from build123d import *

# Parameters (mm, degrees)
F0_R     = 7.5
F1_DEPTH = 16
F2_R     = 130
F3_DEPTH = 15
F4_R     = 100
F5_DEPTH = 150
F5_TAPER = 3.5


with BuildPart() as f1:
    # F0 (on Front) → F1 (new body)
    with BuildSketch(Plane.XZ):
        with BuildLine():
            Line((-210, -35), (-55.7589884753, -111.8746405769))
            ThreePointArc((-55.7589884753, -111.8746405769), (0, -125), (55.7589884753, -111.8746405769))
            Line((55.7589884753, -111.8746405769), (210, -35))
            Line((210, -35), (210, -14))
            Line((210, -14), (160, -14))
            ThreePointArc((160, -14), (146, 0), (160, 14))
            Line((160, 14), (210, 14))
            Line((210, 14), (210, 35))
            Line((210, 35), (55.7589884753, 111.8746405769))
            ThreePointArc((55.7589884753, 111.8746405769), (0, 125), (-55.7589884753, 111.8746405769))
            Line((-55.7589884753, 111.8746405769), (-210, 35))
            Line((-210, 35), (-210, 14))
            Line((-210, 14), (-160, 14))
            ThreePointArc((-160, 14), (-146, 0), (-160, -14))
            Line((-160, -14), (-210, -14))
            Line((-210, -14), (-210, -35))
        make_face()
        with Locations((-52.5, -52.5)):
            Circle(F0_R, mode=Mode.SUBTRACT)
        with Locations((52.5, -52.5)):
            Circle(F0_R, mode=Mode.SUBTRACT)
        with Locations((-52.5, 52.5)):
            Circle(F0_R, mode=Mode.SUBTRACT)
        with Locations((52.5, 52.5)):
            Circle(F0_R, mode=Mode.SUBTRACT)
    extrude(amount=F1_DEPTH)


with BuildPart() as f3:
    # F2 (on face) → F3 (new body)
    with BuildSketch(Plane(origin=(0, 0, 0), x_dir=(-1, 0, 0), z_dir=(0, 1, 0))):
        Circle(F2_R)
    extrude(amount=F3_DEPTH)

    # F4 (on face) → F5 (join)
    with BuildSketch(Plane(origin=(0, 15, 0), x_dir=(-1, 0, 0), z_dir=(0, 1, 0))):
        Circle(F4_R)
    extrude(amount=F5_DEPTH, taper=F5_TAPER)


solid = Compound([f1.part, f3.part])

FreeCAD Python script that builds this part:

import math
import FreeCAD as App
import Part
import Sketcher

V = App.Vector

doc = App.newDocument("Part")
params = doc.addObject("Spreadsheet::Sheet", "Params")
for row, (alias, value) in enumerate([
    ("sketch1_diameter", "15 mm"),
    ("sketch1_radius", "125 mm"),
    ("sketch1_radius2", "14 mm"),
    ("sketch1_width", "50 mm"),
    ("sketch1_height", "21 mm"),
    ("pad1_length", "16 mm"),
    ("sketch2_diameter", "260 mm"),
    ("pad2_length", "15 mm"),
    ("sketch3_diameter", "200 mm"),
    ("pad3_length", "150 mm"),
    ("pad3_taper", "-3.5 deg"),
], start=1):
    params.set(f"A{row}", alias)
    params.set(f"B{row}", "=" + value)
    params.setAlias(f"B{row}", alias)

body = doc.addObject("PartDesign::Body", "Body")

# Sketch on XZ plane
sketch1 = doc.addObject("Sketcher::SketchObject", "Sketch")
body.addObject(sketch1)
sketch1.AttachmentSupport = (doc.XZ_Plane, [""])
sketch1.MapMode = "FlatFace"
sketch1.addGeometry(Part.LineSegment(V(-210, -35, 0), V(-56, -112, 0)), False)
sketch1.addGeometry(Part.ArcOfCircle(Part.Circle(V(0, 0, 0), V(0, 0, 1), 125), math.radians(-116), math.radians(-64)), False)
sketch1.addGeometry(Part.LineSegment(V(56, -112, 0), V(210, -35, 0)), False)
sketch1.addGeometry(Part.LineSegment(V(210, -35, 0), V(210, -14, 0)), False)
sketch1.addGeometry(Part.LineSegment(V(210, -14, 0), V(160, -14, 0)), False)
sketch1.addGeometry(Part.ArcOfCircle(Part.Circle(V(160, 0, 0), V(0, 0, 1), 14), math.radians(90), math.radians(270)), False)
sketch1.addGeometry(Part.LineSegment(V(160, 14, 0), V(210, 14, 0)), False)
sketch1.addGeometry(Part.LineSegment(V(210, 14, 0), V(210, 35, 0)), False)
sketch1.addGeometry(Part.LineSegment(V(210, 35, 0), V(56, 112, 0)), False)
sketch1.addGeometry(Part.ArcOfCircle(Part.Circle(V(0, 0, 0), V(0, 0, 1), 125), math.radians(64), math.radians(116)), False)
sketch1.addGeometry(Part.LineSegment(V(-56, 112, 0), V(-210, 35, 0)), False)
sketch1.addGeometry(Part.LineSegment(V(-210, 35, 0), V(-210, 14, 0)), False)
sketch1.addGeometry(Part.LineSegment(V(-210, 14, 0), V(-160, 14, 0)), False)
sketch1.addGeometry(Part.ArcOfCircle(Part.Circle(V(-160, 0, 0), V(0, 0, 1), 14), math.radians(-90), math.radians(90)), False)
sketch1.addGeometry(Part.LineSegment(V(-160, -14, 0), V(-210, -14, 0)), False)
sketch1.addGeometry(Part.LineSegment(V(-210, -14, 0), V(-210, -35, 0)), False)
sketch1.addGeometry(Part.Circle(V(-52, -52, 0), V(0, 0, 1), 8), False)
sketch1.addGeometry(Part.Circle(V(52, -52, 0), V(0, 0, 1), 8), False)
sketch1.addGeometry(Part.Circle(V(-52, 52, 0), V(0, 0, 1), 8), False)
sketch1.addGeometry(Part.Circle(V(52, 52, 0), V(0, 0, 1), 8), False)
sketch1.addConstraint(Sketcher.Constraint("Tangent", 0, 2, 1, 1))
sketch1.addConstraint(Sketcher.Constraint("Tangent", 1, 2, 2, 1))
sketch1.addConstraint(Sketcher.Constraint("Coincident", 2, 2, 3, 1))
sketch1.addConstraint(Sketcher.Constraint("Coincident", 3, 2, 4, 1))
sketch1.addConstraint(Sketcher.Constraint("Tangent", 4, 2, 5, 2))
sketch1.addConstraint(Sketcher.Constraint("Tangent", 5, 1, 6, 1))
sketch1.addConstraint(Sketcher.Constraint("Coincident", 6, 2, 7, 1))
sketch1.addConstraint(Sketcher.Constraint("Coincident", 7, 2, 8, 1))
sketch1.addConstraint(Sketcher.Constraint("Tangent", 8, 2, 9, 1))
sketch1.addConstraint(Sketcher.Constraint("Tangent", 9, 2, 10, 1))
sketch1.addConstraint(Sketcher.Constraint("Coincident", 10, 2, 11, 1))
sketch1.addConstraint(Sketcher.Constraint("Coincident", 11, 2, 12, 1))
sketch1.addConstraint(Sketcher.Constraint("Tangent", 12, 2, 13, 2))
sketch1.addConstraint(Sketcher.Constraint("Tangent", 13, 1, 14, 1))
sketch1.addConstraint(Sketcher.Constraint("Coincident", 14, 2, 15, 1))
sketch1.addConstraint(Sketcher.Constraint("Coincident", 15, 2, 0, 1))
sketch1.addConstraint(Sketcher.Constraint("Vertical", 3))
sketch1.addConstraint(Sketcher.Constraint("Horizontal", 4))
sketch1.addConstraint(Sketcher.Constraint("Horizontal", 6))
sketch1.addConstraint(Sketcher.Constraint("Vertical", 7))
sketch1.addConstraint(Sketcher.Constraint("Vertical", 11))
sketch1.addConstraint(Sketcher.Constraint("Horizontal", 12))
sketch1.addConstraint(Sketcher.Constraint("Horizontal", 14))
sketch1.addConstraint(Sketcher.Constraint("Vertical", 15))
sketch1.addConstraint(Sketcher.Constraint("Coincident", 1, 3, -1, 1))
sketch1.addConstraint(Sketcher.Constraint("Coincident", 9, 3, -1, 1))
sketch1.addConstraint(Sketcher.Constraint("Equal", 1, 9))
sketch1.addConstraint(Sketcher.Constraint("Equal", 5, 13))
sketch1.addConstraint(Sketcher.Constraint("Equal", 16, 17))
sketch1.addConstraint(Sketcher.Constraint("Equal", 17, 18))
sketch1.addConstraint(Sketcher.Constraint("Equal", 18, 19))
sketch1.addConstraint(Sketcher.Constraint("Symmetric", 5, 3, 13, 3, -1, 1))
sketch1.addConstraint(Sketcher.Constraint("Symmetric", 17, 3, 18, 3, -1, 1))
sketch1.addConstraint(Sketcher.Constraint("Symmetric", 16, 3, 19, 3, -1, 1))
sketch1.addConstraint(Sketcher.Constraint("Symmetric", 2, 2, 10, 2, -1, 1))
sketch1.addConstraint(Sketcher.Constraint("Symmetric", 7, 2, 15, 2, -1, 1))
sketch1.addConstraint(Sketcher.Constraint("Symmetric", 16, 3, 17, 3, -2))
sketch1.addConstraint(Sketcher.Constraint("Symmetric", 7, 2, 10, 2, -2))
sketch1.addConstraint(Sketcher.Constraint("PointOnObject", 5, 3, -1))
sketch1.addConstraint(Sketcher.Constraint("Diameter", 16, 15.0))
sketch1.addConstraint(Sketcher.Constraint("Radius", 1, 125.0))
sketch1.addConstraint(Sketcher.Constraint("Radius", 5, 14.0))
sketch1.addConstraint(Sketcher.Constraint("DistanceX", 4, 2, 4, 1, 50.0))
sketch1.addConstraint(Sketcher.Constraint("DistanceY", 3, 1, 3, 2, 21.0))
sketch1.addConstraint(Sketcher.Constraint("DistanceX", -1, 1, 5, 3, 160.0))
sketch1.addConstraint(Sketcher.Constraint("DistanceX", 16, 3, 17, 3, 105.0))
sketch1.addConstraint(Sketcher.Constraint("DistanceY", 16, 3, 18, 3, 105.0))
sketch1.setExpression("Constraints[39]", "Params.sketch1_diameter")
sketch1.setExpression("Constraints[40]", "Params.sketch1_radius")
sketch1.setExpression("Constraints[41]", "Params.sketch1_radius2")
sketch1.setExpression("Constraints[42]", "Params.sketch1_width")
sketch1.setExpression("Constraints[43]", "Params.sketch1_height")
pad1 = doc.addObject("PartDesign::Pad", "Pad")
body.addObject(pad1)
pad1.Profile = sketch1
pad1.setExpression("Length", "Params.pad1_length")
body2 = doc.addObject("PartDesign::Body", "Body001")

# Sketch on XZ plane
sketch2 = doc.addObject("Sketcher::SketchObject", "Sketch001")
body2.addObject(sketch2)
sketch2.AttachmentSupport = (doc.getObject("XZ_Plane001"), [""])
sketch2.MapMode = "FlatFace"
sketch2.addGeometry(Part.Circle(V(0, 0, 0), V(0, 0, 1), 130), False)
sketch2.addConstraint(Sketcher.Constraint("Coincident", 0, 3, -1, 1))
sketch2.addConstraint(Sketcher.Constraint("Diameter", 0, 260.0))
sketch2.setExpression("Constraints[1]", "Params.sketch2_diameter")
pad2 = doc.addObject("PartDesign::Pad", "Pad001")
body2.addObject(pad2)
pad2.Profile = sketch2
pad2.setExpression("Length", "Params.pad2_length")
pad2.Reversed = True

# Sketch on XZ plane
sketch3 = doc.addObject("Sketcher::SketchObject", "Sketch002")
body2.addObject(sketch3)
sketch3.AttachmentSupport = (doc.getObject("XZ_Plane001"), [""])
sketch3.MapMode = "FlatFace"
sketch3.AttachmentOffset = App.Placement(V(0, 0, -15), App.Rotation())
sketch3.addGeometry(Part.Circle(V(0, 0, 0), V(0, 0, 1), 100), False)
sketch3.addConstraint(Sketcher.Constraint("Coincident", 0, 3, -1, 1))
sketch3.addConstraint(Sketcher.Constraint("Diameter", 0, 200.0))
sketch3.setExpression("Constraints[1]", "Params.sketch3_diameter")
pad3 = doc.addObject("PartDesign::Pad", "Pad002")
body2.addObject(pad3)
pad3.Profile = sketch3
pad3.setExpression("Length", "Params.pad3_length")
pad3.Reversed = True
pad3.setExpression("TaperAngle", "Params.pad3_taper")

doc.recompute()
